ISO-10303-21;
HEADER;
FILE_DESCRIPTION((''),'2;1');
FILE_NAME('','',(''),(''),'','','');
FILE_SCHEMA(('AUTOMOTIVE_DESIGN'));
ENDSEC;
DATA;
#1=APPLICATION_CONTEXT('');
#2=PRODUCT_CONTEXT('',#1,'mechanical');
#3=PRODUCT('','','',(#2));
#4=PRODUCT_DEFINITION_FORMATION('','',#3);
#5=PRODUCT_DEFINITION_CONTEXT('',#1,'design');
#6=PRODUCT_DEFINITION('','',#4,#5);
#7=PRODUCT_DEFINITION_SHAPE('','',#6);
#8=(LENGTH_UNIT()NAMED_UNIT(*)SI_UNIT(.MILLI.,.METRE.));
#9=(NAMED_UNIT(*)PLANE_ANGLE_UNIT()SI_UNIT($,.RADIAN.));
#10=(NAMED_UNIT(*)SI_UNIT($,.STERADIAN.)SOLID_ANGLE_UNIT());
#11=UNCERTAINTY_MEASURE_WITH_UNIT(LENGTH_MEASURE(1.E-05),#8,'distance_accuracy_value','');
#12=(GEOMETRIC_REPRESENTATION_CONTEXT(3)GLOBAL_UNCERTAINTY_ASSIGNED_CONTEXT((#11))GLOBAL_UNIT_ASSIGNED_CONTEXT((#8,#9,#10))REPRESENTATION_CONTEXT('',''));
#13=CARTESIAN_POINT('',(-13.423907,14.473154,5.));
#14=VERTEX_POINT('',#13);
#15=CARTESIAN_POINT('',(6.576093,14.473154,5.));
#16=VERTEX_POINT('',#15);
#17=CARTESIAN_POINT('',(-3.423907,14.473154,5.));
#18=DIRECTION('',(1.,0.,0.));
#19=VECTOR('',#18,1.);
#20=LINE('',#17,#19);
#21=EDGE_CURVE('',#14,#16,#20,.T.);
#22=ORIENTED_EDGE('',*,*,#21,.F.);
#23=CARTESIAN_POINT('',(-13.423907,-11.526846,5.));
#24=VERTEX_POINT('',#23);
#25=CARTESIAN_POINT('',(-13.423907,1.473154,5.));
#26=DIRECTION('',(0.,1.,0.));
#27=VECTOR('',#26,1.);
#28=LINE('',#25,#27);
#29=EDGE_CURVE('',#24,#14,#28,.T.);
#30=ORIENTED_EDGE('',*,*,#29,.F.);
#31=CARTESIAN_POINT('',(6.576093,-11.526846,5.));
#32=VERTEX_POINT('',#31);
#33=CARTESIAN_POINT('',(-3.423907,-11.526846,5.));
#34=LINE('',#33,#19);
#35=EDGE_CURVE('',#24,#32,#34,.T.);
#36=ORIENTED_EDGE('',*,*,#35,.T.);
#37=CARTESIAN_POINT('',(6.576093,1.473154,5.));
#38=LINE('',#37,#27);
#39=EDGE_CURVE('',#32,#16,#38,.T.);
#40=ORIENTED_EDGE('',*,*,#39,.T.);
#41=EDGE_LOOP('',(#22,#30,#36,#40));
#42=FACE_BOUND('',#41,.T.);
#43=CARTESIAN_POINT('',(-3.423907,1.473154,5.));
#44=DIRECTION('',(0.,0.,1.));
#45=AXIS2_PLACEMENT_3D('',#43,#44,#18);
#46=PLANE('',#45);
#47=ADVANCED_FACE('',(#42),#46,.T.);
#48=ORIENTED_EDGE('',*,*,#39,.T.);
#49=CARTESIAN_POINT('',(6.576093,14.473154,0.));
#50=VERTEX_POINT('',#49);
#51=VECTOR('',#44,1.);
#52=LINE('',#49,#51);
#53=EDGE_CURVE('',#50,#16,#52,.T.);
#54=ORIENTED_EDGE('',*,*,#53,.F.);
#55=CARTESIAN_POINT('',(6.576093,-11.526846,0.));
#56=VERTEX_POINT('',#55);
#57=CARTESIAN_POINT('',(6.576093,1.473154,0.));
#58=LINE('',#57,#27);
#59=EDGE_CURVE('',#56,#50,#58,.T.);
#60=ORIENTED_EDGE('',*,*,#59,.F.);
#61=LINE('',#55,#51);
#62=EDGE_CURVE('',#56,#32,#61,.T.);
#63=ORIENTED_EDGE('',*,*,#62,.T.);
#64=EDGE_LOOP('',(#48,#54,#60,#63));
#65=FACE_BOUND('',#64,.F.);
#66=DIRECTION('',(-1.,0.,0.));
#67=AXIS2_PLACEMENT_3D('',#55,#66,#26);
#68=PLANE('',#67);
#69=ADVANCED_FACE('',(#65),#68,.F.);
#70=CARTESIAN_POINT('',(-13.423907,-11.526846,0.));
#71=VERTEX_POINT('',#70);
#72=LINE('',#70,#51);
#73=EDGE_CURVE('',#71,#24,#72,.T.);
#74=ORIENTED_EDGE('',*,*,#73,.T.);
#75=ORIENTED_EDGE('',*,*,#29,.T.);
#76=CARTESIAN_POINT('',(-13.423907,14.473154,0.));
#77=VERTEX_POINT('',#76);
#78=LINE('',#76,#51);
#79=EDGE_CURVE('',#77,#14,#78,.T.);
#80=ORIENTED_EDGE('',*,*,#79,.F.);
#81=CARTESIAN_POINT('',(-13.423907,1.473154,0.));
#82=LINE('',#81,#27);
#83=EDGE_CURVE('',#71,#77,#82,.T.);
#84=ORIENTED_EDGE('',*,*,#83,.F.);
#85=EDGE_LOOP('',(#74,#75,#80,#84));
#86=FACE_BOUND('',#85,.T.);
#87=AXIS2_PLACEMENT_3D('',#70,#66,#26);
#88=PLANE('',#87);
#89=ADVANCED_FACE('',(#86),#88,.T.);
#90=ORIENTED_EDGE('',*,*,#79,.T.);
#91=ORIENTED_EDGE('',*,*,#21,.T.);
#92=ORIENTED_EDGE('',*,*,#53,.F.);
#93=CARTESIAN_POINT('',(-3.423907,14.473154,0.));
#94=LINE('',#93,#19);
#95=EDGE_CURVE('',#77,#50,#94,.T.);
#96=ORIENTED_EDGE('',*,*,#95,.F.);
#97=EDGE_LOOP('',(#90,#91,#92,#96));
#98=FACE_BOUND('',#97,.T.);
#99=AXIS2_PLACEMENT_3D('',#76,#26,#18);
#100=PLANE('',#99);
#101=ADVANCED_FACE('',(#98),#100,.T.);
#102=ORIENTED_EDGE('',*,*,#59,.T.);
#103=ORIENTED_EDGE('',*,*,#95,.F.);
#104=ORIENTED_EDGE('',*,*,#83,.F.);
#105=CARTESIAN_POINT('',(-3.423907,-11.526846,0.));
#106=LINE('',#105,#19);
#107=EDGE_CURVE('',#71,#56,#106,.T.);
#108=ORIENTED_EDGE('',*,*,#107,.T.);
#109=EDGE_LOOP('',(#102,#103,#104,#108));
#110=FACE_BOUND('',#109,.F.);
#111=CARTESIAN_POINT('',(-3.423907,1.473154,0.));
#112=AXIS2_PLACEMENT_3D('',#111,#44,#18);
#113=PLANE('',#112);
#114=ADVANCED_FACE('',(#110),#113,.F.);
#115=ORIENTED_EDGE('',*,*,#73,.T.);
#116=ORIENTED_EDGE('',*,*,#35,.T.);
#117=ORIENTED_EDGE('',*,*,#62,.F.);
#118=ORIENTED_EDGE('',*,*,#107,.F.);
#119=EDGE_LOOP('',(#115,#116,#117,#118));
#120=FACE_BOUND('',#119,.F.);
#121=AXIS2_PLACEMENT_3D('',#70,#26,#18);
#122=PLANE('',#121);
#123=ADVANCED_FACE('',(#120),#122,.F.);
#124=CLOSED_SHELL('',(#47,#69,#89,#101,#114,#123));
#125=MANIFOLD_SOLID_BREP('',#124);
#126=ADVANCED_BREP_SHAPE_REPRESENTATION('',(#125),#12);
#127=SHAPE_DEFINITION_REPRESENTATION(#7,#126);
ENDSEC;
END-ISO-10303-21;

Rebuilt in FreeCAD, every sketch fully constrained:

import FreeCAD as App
import Part
import Sketcher

V = App.Vector


def add_polygon(sketch, points):
    """Adds a closed chain of lines whose ends are joined by coincident constraints."""
    first, n = sketch.GeometryCount, len(points)
    for a, b in zip(points, points[1:] + points[:1]):
        sketch.addGeometry(Part.LineSegment(App.Vector(*a, 0), App.Vector(*b, 0)), False)
    for i in range(n):
        sketch.addConstraint(Sketcher.Constraint("Coincident", first + i, 2, first + (i + 1) % n, 1))

doc = App.newDocument("Part")
params = doc.addObject("Spreadsheet::Sheet", "Params")
for row, (alias, value) in enumerate([
    ("sketch1_width", "20 mm"),
    ("sketch1_height", "26 mm"),
    ("pad1_length", "5 mm"),
], start=1):
    params.set(f"A{row}", alias)
    params.set(f"B{row}", "=" + value)
    params.setAlias(f"B{row}", alias)

body = doc.addObject("PartDesign::Body", "Body")

sketch1 = body.newObject("Sketcher::SketchObject", "Sketch")
sketch1.AttachmentSupport = (doc.getObject("XY_Plane"), [""])
sketch1.MapMode = "FlatFace"
add_polygon(sketch1, [(-13, 14), (-13, -12), (7, -12), (7, 14)])
sketch1.addConstraint(Sketcher.Constraint("Vertical", 0))
sketch1.addConstraint(Sketcher.Constraint("Horizontal", 1))
sketch1.addConstraint(Sketcher.Constraint("Vertical", 2))
sketch1.addConstraint(Sketcher.Constraint("Horizontal", 3))
sketch1.addConstraint(Sketcher.Constraint("DistanceX", 1, 1, 1, 2, 20.0))
sketch1.addConstraint(Sketcher.Constraint("DistanceY", 0, 2, 0, 1, 26.0))
sketch1.addConstraint(Sketcher.Constraint("DistanceX", 0, 2, -1, 1, 13.423907))
sketch1.addConstraint(Sketcher.Constraint("DistanceY", 0, 2, -1, 1, 11.526846))
sketch1.setExpression("Constraints[8]", "Params.sketch1_width")
sketch1.setExpression("Constraints[9]", "Params.sketch1_height")
pad1 = body.newObject("PartDesign::Pad", "Pad")
pad1.Profile = sketch1
pad1.setExpression("Length", "Params.pad1_length")

doc.recompute()
